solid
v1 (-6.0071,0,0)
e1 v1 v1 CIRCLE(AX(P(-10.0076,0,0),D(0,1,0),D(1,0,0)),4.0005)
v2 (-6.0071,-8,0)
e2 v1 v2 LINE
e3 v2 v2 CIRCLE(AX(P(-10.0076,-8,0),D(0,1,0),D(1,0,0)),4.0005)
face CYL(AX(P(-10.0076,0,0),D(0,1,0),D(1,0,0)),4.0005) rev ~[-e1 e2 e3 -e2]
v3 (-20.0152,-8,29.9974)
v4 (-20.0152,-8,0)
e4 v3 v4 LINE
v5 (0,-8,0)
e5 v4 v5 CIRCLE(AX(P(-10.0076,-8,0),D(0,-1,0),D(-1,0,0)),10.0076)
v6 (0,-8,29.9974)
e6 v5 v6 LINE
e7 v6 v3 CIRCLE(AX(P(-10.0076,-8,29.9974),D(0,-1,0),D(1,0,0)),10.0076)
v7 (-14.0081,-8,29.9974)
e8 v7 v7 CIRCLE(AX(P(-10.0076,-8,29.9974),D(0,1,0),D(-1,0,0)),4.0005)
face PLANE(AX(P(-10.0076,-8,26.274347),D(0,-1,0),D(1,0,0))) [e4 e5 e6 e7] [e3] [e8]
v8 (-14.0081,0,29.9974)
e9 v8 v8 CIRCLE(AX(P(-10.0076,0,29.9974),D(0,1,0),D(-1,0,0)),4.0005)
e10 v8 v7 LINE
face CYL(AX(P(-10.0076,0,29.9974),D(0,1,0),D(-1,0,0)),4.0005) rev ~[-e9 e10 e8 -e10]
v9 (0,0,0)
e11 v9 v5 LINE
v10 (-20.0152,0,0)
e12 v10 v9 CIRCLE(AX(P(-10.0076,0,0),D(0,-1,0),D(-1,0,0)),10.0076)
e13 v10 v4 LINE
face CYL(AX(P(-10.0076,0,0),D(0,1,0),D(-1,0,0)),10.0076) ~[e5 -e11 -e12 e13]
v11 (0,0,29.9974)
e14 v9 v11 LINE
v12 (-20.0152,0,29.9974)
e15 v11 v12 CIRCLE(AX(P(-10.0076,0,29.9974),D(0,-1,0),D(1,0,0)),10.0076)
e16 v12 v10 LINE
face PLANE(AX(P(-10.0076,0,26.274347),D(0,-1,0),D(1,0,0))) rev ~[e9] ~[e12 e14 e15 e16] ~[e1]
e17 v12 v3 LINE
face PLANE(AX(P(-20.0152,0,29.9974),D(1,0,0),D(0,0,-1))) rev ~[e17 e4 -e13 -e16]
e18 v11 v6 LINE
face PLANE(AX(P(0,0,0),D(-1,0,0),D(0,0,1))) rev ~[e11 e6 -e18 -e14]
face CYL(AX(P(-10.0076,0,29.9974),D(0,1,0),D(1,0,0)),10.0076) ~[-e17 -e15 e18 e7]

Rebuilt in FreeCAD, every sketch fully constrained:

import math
import FreeCAD as App
import Part
import Sketcher

V = App.Vector
Q = App.Units.Quantity

doc = App.newDocument("Part")
params = doc.addObject("Spreadsheet::Sheet", "Params")
for row, (alias, value) in enumerate([
    ("sketch1_diameter", "0.315 in"),
    ("sketch1_radius", "0.394 in"),
    ("sketch1_height", "1.181 in"),
    ("pad1_length", "8 mm"),
], start=1):
    params.set(f"A{row}", alias)
    params.set(f"B{row}", "=" + value)
    params.setAlias(f"B{row}", alias)

body = doc.addObject("PartDesign::Body", "Body")

sketch1 = doc.addObject("Sketcher::SketchObject", "Sketch")
body.addObject(sketch1)
sketch1.AttachmentSupport = (doc.XZ_Plane, [""])
sketch1.MapMode = "FlatFace"
sketch1.addGeometry(Part.ArcOfCircle(Part.Circle(V(-10.0076, 29.9974, 0), V(0, 0, 1), 10.0076), math.radians(0), math.radians(180)), False)
sketch1.addGeometry(Part.LineSegment(V(-20.0152, 29.9974, 0), V(-20.0152, 0, 0)), False)
sketch1.addGeometry(Part.ArcOfCircle(Part.Circle(V(-10.0076, 0, 0), V(0, 0, 1), 10.0076), math.radians(180), math.radians(360)), False)
sketch1.addGeometry(Part.LineSegment(V(0, 0, 0), V(0, 29.9974, 0)), False)
sketch1.addGeometry(Part.Circle(V(-10.0076, 29.9974, 0), V(0, 0, 1), 4.0005), False)
sketch1.addGeometry(Part.Circle(V(-10.0076, 0, 0), V(0, 0, 1), 4.0005), False)
sketch1.addConstraint(Sketcher.Constraint("Tangent", 0, 2, 1, 1))
sketch1.addConstraint(Sketcher.Constraint("Tangent", 1, 2, 2, 1))
sketch1.addConstraint(Sketcher.Constraint("Tangent", 2, 2, 3, 1))
sketch1.addConstraint(Sketcher.Constraint("Tangent", 3, 2, 0, 1))
sketch1.addConstraint(Sketcher.Constraint("Vertical", 1))
sketch1.addConstraint(Sketcher.Constraint("Vertical", 3))
sketch1.addConstraint(Sketcher.Constraint("Coincident", 2, 2, -1, 1))
sketch1.addConstraint(Sketcher.Constraint("Coincident", 4, 3, 0, 3))
sketch1.addConstraint(Sketcher.Constraint("Coincident", 5, 3, 2, 3))
sketch1.addConstraint(Sketcher.Constraint("Equal", 4, 5))
sketch1.addConstraint(Sketcher.Constraint("Diameter", 4, Q("0.315 in")))
sketch1.addConstraint(Sketcher.Constraint("Radius", 0, Q("0.394 in")))
sketch1.addConstraint(Sketcher.Constraint("DistanceY", 1, 2, 1, 1, Q("1.181 in")))
sketch1.setExpression("Constraints[10]", "Params.sketch1_diameter")
sketch1.setExpression("Constraints[11]", "Params.sketch1_radius")
sketch1.setExpression("Constraints[12]", "Params.sketch1_height")
pad1 = doc.addObject("PartDesign::Pad", "Pad")
body.addObject(pad1)
pad1.Profile = sketch1
pad1.setExpression("Length", "Params.pad1_length")

doc.recompute()
